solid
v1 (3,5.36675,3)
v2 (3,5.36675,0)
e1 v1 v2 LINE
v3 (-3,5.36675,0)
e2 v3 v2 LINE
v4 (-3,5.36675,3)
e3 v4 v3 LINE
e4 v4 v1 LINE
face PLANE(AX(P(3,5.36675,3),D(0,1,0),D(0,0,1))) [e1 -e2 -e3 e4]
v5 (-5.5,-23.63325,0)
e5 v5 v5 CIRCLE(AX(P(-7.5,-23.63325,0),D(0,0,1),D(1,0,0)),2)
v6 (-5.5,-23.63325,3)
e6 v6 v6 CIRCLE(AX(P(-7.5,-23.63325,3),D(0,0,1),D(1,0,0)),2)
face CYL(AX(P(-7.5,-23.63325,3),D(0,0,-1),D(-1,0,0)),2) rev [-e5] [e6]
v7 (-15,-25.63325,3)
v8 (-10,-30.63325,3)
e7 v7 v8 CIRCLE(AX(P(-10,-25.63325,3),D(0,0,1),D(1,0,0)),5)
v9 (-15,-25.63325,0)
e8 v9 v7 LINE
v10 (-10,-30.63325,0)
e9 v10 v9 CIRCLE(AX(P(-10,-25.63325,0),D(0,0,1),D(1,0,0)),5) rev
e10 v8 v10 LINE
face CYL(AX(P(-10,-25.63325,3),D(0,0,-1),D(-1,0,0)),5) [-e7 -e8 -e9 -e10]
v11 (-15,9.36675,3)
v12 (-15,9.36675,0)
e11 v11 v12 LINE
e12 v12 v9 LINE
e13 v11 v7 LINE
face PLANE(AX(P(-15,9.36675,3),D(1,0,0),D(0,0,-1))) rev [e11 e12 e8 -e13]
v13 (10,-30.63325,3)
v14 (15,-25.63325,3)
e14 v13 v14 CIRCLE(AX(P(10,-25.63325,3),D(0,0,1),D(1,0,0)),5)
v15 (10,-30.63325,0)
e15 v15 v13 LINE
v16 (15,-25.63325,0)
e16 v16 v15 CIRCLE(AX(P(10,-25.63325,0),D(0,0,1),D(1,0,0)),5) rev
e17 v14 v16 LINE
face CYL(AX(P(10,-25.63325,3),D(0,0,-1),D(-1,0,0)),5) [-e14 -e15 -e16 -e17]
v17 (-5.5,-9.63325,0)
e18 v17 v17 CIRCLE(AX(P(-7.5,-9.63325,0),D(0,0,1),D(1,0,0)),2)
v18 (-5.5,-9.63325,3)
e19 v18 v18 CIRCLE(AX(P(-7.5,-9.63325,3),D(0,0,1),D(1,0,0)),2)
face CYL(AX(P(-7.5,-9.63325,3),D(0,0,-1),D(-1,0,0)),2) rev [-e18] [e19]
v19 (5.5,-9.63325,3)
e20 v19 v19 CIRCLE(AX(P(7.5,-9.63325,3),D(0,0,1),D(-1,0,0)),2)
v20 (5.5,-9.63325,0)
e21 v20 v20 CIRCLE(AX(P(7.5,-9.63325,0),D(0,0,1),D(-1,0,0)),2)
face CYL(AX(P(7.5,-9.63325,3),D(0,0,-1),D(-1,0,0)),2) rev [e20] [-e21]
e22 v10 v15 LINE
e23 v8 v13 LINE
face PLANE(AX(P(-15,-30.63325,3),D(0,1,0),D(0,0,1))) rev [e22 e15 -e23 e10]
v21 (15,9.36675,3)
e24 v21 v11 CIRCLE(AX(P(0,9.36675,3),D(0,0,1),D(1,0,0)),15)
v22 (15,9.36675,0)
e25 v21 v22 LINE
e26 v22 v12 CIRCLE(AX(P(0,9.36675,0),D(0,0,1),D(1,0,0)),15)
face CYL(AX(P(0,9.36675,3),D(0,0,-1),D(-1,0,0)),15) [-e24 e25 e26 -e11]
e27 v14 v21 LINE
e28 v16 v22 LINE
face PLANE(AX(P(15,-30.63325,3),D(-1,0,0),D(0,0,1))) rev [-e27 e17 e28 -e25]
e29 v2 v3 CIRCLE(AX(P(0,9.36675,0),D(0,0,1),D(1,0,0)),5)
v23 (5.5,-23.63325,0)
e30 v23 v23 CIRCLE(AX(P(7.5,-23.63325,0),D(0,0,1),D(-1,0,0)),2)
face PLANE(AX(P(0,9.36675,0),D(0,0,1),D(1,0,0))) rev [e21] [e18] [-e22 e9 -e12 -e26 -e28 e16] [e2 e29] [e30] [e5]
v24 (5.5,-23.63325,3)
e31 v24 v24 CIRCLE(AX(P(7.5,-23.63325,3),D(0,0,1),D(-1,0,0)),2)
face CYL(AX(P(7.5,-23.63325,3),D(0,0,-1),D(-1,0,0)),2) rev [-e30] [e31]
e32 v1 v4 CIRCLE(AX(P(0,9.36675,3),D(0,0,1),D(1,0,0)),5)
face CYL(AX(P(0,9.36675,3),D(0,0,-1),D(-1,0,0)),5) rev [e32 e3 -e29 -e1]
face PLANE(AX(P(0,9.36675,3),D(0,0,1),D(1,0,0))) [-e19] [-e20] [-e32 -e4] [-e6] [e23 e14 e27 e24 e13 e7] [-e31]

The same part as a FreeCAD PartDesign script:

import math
import FreeCAD as App
import Part
import Sketcher


def edges_at(feature, points):
    """Names of the edges that pass closest to the given points."""
    edges = feature.Shape.Edges
    near = lambda p: min(range(len(edges)), key=lambda i: edges[i].distToShape(Part.Vertex(*p))[0])
    return sorted({f"Edge{near(p) + 1}" for p in points})

doc = App.newDocument("Part")
body = doc.addObject("PartDesign::Body", "Body")

# Sketch on XY plane
sketch1 = body.newObject("Sketcher::SketchObject", "Sketch")
sketch1.AttachmentSupport = (doc.getObject("XY_Plane"), [""])
sketch1.MapMode = "FlatFace"
sketch1.addGeometry(Part.LineSegment(App.Vector(-15, 9.4, 0), App.Vector(-15, -30.6, 0)), False)
sketch1.addGeometry(Part.LineSegment(App.Vector(-15, -30.6, 0), App.Vector(15, -30.6, 0)), False)
sketch1.addGeometry(Part.LineSegment(App.Vector(15, -30.6, 0), App.Vector(15, 9.4, 0)), False)
sketch1.addGeometry(Part.ArcOfCircle(Part.Circle(App.Vector(0, 9.4, 0), App.Vector(0, 0, 1), 15), math.radians(0), math.radians(180)), False)
sketch1.addGeometry(Part.Circle(App.Vector(-7.5, -23.6, 0), App.Vector(0, 0, 1), 2), False)
sketch1.addGeometry(Part.Circle(App.Vector(-7.5, -9.6, 0), App.Vector(0, 0, 1), 2), False)
sketch1.addGeometry(Part.Circle(App.Vector(7.5, -23.6, 0), App.Vector(0, 0, 1), 2), False)
sketch1.addGeometry(Part.Circle(App.Vector(7.5, -9.6, 0), App.Vector(0, 0, 1), 2), False)
sketch1.addGeometry(Part.ArcOfCircle(Part.Circle(App.Vector(0, 9.4, 0), App.Vector(0, 0, 1), 5), math.radians(-53), math.radians(233)), False)
sketch1.addGeometry(Part.LineSegment(App.Vector(3, 5.4, 0), App.Vector(-3, 5.4, 0)), False)
sketch1.addConstraint(Sketcher.Constraint("Coincident", 0, 2, 1, 1))
sketch1.addConstraint(Sketcher.Constraint("Coincident", 1, 2, 2, 1))
sketch1.addConstraint(Sketcher.Constraint("Tangent", 2, 2, 3, 1))
sketch1.addConstraint(Sketcher.Constraint("Tangent", 3, 2, 0, 1))
sketch1.addConstraint(Sketcher.Constraint("Coincident", 8, 1, 9, 1))
sketch1.addConstraint(Sketcher.Constraint("Coincident", 9, 2, 8, 2))
sketch1.addConstraint(Sketcher.Constraint("Vertical", 0))
sketch1.addConstraint(Sketcher.Constraint("Horizontal", 1))
sketch1.addConstraint(Sketcher.Constraint("Vertical", 2))
sketch1.addConstraint(Sketcher.Constraint("Horizontal", 9))
sketch1.addConstraint(Sketcher.Constraint("Coincident", 8, 3, 3, 3))
sketch1.addConstraint(Sketcher.Constraint("Equal", 4, 5))
sketch1.addConstraint(Sketcher.Constraint("Equal", 5, 6))
sketch1.addConstraint(Sketcher.Constraint("Equal", 6, 7))
sketch1.addConstraint(Sketcher.Constraint("Symmetric", 4, 3, 6, 3, -2))
sketch1.addConstraint(Sketcher.Constraint("Symmetric", 5, 3, 7, 3, -2))
sketch1.addConstraint(Sketcher.Constraint("PointOnObject", 3, 3, -2))
sketch1.addConstraint(Sketcher.Constraint("Vertical", 4, 3, 5, 3))
sketch1.addConstraint(Sketcher.Constraint("Diameter", 4, 4.0))
sketch1.addConstraint(Sketcher.Constraint("Radius", 3, 15.0))
sketch1.addConstraint(Sketcher.Constraint("Radius", 8, 5.0))
sketch1.addConstraint(Sketcher.Constraint("DistanceX", 9, 2, 9, 1, 6.0))
sketch1.addConstraint(Sketcher.Constraint("DistanceY", 0, 2, 0, 1, 40.0))
sketch1.addConstraint(Sketcher.Constraint("DistanceY", 4, 3, 3, 3, 33.0))
sketch1.addConstraint(Sketcher.Constraint("DistanceY", 4, 3, 5, 3, 14.0))
sketch1.addConstraint(Sketcher.Constraint("DistanceX", 4, 3, 6, 3, 15.0))
sketch1.addConstraint(Sketcher.Constraint("DistanceY", -1, 1, 3, 3, 9.36675))
pad1 = body.newObject("PartDesign::Pad", "Pad")
pad1.Profile = sketch1
pad1.Length = 3
doc.recompute()

fillet = body.newObject("PartDesign::Fillet", "Fillet")
fillet.Base = (pad1, edges_at(pad1, [(15, -30.633, 1.5), (-15, -30.633, 1.5)]))
fillet.Radius = 5

doc.recompute()
